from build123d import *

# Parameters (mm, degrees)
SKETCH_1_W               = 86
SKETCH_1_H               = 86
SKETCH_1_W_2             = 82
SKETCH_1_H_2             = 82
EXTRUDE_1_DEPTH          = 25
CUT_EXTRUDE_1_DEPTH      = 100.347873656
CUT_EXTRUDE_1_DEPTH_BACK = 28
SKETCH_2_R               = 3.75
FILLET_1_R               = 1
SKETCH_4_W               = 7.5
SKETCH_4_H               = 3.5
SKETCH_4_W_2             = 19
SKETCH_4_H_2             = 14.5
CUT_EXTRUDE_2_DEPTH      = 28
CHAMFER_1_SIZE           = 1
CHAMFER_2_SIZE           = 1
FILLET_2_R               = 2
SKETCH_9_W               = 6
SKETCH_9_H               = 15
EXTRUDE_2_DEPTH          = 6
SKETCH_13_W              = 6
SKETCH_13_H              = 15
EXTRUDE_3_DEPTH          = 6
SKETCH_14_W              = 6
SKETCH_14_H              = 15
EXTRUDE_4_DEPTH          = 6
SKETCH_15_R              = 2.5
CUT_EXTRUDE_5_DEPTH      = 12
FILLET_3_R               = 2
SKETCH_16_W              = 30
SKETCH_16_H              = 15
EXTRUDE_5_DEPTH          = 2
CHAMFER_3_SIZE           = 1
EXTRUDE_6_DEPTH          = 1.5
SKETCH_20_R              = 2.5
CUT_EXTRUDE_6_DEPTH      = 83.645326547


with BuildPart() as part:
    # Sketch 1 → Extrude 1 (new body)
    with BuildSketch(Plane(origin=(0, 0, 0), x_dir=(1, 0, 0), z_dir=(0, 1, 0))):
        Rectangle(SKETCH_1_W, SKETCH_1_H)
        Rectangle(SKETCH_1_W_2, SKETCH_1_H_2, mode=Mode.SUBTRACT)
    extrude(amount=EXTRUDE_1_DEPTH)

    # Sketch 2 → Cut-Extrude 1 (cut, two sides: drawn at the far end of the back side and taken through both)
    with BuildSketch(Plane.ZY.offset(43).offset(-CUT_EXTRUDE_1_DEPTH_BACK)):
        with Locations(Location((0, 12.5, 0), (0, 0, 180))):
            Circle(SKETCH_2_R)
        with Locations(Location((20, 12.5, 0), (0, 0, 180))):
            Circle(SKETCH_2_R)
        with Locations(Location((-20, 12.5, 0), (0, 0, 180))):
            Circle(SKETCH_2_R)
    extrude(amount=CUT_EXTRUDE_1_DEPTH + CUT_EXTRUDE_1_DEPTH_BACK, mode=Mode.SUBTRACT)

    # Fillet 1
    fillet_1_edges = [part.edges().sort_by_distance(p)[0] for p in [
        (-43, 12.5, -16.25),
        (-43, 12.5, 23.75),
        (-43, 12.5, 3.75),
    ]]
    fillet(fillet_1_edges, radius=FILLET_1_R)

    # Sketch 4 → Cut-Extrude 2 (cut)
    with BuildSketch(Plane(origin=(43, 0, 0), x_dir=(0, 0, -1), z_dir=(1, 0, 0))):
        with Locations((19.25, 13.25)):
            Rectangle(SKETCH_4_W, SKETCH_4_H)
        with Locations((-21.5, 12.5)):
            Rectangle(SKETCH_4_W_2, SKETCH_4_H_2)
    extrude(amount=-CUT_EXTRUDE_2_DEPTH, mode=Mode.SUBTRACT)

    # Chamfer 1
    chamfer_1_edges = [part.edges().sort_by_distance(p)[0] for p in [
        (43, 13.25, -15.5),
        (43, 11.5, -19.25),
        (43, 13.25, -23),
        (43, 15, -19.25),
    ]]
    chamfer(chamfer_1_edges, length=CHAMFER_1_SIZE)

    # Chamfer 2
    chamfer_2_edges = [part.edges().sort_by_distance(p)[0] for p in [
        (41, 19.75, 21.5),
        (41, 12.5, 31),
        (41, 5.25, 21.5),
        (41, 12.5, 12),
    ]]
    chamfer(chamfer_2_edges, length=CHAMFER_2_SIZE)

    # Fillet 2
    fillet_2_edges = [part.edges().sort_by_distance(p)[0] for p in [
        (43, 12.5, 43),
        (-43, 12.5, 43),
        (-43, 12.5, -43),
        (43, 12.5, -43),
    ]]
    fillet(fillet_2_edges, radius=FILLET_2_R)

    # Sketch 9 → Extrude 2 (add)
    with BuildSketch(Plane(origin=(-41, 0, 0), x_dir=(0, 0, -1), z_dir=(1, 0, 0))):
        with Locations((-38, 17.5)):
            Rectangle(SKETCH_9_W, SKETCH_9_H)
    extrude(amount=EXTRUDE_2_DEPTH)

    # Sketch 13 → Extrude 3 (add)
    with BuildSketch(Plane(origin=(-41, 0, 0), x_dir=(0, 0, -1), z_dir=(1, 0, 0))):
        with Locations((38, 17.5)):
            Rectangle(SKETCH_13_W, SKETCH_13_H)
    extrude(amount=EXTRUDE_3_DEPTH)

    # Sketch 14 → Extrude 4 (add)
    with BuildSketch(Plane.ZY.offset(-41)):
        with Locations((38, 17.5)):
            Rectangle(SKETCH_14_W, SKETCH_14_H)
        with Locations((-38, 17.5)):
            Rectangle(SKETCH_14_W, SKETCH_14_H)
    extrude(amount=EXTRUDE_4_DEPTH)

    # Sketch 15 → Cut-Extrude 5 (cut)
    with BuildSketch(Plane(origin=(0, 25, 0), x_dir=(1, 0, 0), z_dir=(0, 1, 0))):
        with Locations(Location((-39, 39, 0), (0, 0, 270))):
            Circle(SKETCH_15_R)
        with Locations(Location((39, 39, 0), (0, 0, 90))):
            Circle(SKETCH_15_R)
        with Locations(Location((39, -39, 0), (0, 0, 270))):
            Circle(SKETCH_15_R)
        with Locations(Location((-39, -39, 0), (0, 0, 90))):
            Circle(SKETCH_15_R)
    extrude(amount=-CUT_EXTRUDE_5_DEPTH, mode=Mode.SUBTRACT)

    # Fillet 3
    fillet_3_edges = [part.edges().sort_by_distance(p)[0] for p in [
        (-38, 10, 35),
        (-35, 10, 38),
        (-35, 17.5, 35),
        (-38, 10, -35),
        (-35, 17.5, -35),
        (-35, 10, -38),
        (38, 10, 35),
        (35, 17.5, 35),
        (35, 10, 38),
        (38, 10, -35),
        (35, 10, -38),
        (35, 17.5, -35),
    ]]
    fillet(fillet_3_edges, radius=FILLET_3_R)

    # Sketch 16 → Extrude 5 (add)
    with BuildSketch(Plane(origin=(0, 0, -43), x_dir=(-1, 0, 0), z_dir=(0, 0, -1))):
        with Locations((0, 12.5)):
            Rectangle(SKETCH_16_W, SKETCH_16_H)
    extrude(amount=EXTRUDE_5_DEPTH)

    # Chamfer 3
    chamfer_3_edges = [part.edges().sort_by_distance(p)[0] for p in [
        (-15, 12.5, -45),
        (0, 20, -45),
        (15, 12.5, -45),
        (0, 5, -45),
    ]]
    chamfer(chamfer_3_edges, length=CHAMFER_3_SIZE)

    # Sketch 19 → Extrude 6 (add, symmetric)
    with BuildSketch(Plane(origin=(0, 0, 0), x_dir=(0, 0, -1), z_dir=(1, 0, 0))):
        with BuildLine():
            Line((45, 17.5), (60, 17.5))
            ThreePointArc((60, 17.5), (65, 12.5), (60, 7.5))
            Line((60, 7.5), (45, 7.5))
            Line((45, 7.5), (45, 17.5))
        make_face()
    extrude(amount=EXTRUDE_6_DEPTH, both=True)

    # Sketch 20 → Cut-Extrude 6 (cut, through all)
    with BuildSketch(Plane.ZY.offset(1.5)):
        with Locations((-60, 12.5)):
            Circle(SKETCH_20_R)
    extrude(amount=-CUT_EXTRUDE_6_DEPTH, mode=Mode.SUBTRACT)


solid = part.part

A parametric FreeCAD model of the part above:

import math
import FreeCAD as App
import Part
import Sketcher

V = App.Vector


def edges_at(feature, points):
    """Names of the edges that pass closest to the given points."""
    edges = feature.Shape.Edges
    near = lambda p: min(range(len(edges)), key=lambda i: edges[i].distToShape(Part.Vertex(*p))[0])
    return sorted({f"Edge{near(p) + 1}" for p in points})


def add_polygon(sketch, points):
    """Adds a closed chain of lines whose ends are joined by coincident constraints."""
    first, n = sketch.GeometryCount, len(points)
    for a, b in zip(points, points[1:] + points[:1]):
        sketch.addGeometry(Part.LineSegment(App.Vector(*a, 0), App.Vector(*b, 0)), False)
    for i in range(n):
        sketch.addConstraint(Sketcher.Constraint("Coincident", first + i, 2, first + (i + 1) % n, 1))

doc = App.newDocument("Part")
params = doc.addObject("Spreadsheet::Sheet", "Params")
for row, (alias, value) in enumerate([
    ("sketch1_width", "86 mm"),
    ("sketch1_width2", "82 mm"),
    ("pad1_length", "25 mm"),
    ("sketch2_diameter", "7.5 mm"),
    ("pocket1_length", "100.347874 mm"),
    ("pocket1_length2", "28 mm"),
    ("fillet_radius", "1 mm"),
    ("sketch3_height", "19 mm"),
    ("sketch3_width", "3.5 mm"),
    ("sketch3_width2", "14.5 mm"),
    ("sketch3_height2", "7.5 mm"),
    ("pocket2_length", "28 mm"),
    ("chamfer_size", "1 mm"),
    ("chamfer2_size", "1 mm"),
    ("fillet2_radius", "2 mm"),
    ("sketch4_width", "15 mm"),
    ("sketch4_height", "6 mm"),
    ("pad2_length", "6 mm"),
    ("sketch5_width", "15 mm"),
    ("sketch5_height", "6 mm"),
    ("pad3_length", "6 mm"),
    ("sketch6_width", "15 mm"),
    ("sketch6_height", "6 mm"),
    ("pad4_length", "6 mm"),
    ("sketch7_diameter", "5 mm"),
    ("pocket3_length", "12 mm"),
    ("fillet3_radius", "2 mm"),
    ("sketch8_width", "30 mm"),
    ("sketch8_height", "15 mm"),
    ("pad5_length", "2 mm"),
    ("chamfer3_size", "1 mm"),
    ("sketch9_radius", "5 mm"),
    ("sketch9_height", "15 mm"),
    ("pad6_length", "3 mm"),
    ("sketch10_diameter", "5 mm"),
], start=1):
    params.set(f"A{row}", alias)
    params.set(f"B{row}", "=" + value)
    params.setAlias(f"B{row}", alias)

body = doc.addObject("PartDesign::Body", "Body")

sketch1 = body.newObject("Sketcher::SketchObject", "Sketch")
sketch1.AttachmentSupport = (doc.getObject("XZ_Plane"), [""])
sketch1.MapMode = "FlatFace"
add_polygon(sketch1, [(-43, -43), (-43, 43), (43, 43), (43, -43)])
add_polygon(sketch1, [(41, 41), (-41, 41), (-41, -41), (41, -41)])
sketch1.addConstraint([
    Sketcher.Constraint("Vertical", 0),
    Sketcher.Constraint("Horizontal", 1),
    Sketcher.Constraint("Vertical", 2),
    Sketcher.Constraint("Horizontal", 3),
    Sketcher.Constraint("Horizontal", 4),
    Sketcher.Constraint("Vertical", 5),
    Sketcher.Constraint("Horizontal", 6),
    Sketcher.Constraint("Vertical", 7),
    Sketcher.Constraint("Symmetric", 0, 2, 2, 2, -1, 1),
    Sketcher.Constraint("Symmetric", 4, 2, 6, 2, -1, 1),
    Sketcher.Constraint("Equal", 3, 0),
    Sketcher.Constraint("Equal", 6, 5),
    Sketcher.Constraint("DistanceX", 1, 1, 1, 2, 86.0),
    Sketcher.Constraint("DistanceX", 4, 2, 4, 1, 82.0),
])
sketch1.setExpression("Constraints[20]", "Params.sketch1_width")
sketch1.setExpression("Constraints[21]", "Params.sketch1_width2")
pad1 = body.newObject("PartDesign::Pad", "Pad")
pad1.Profile = sketch1
pad1.setExpression("Length", "Params.pad1_length")
pad1.Reversed = True

sketch2 = body.newObject("Sketcher::SketchObject", "Sketch001")
sketch2.AttachmentSupport = (doc.getObject("YZ_Plane"), [""])
sketch2.MapMode = "FlatFace"
sketch2.AttachmentOffset = App.Placement(V(0, 0, -43), App.Rotation())
sketch2.addGeometry([
    Part.Circle(V(12.5, 0, 0), V(0, 0, 1), 3.8),
    Part.Circle(V(12.5, 20, 0), V(0, 0, 1), 3.8),
    Part.Circle(V(12.5, -20, 0), V(0, 0, 1), 3.8),
], False)
sketch2.addConstraint([
    Sketcher.Constraint("Equal", 0, 1),
    Sketcher.Constraint("Equal", 1, 2),
    Sketcher.Constraint("Symmetric", 1, 3, 2, 3, -1),
    Sketcher.Constraint("PointOnObject", 0, 3, -1),
    Sketcher.Constraint("Vertical", 0, 3, 1, 3),
    Sketcher.Constraint("Diameter", 0, 7.5),
    Sketcher.Constraint("DistanceY", -1, 1, 1, 3, 20.0),
    Sketcher.Constraint("DistanceX", -1, 1, 0, 3, 12.5),
])
sketch2.setExpression("Constraints[5]", "Params.sketch2_diameter")
pocket1 = body.newObject("PartDesign::Pocket", "Pocket")
pocket1.Profile = sketch2
pocket1.Type = "TwoLengths"
pocket1.setExpression("Length", "Params.pocket1_length")
pocket1.setExpression("Length2", "Params.pocket1_length2")
doc.recompute()

fillet = body.newObject("PartDesign::Fillet", "Fillet")
fillet.Base = (pocket1, edges_at(pocket1, [(-43, 12.5, -16.25), (-43, 12.5, 23.75), (-43, 12.5, 3.75)]))
fillet.setExpression("Radius", "Params.fillet_radius")

sketch3 = body.newObject("Sketcher::SketchObject", "Sketch002")
sketch3.AttachmentSupport = (doc.getObject("YZ_Plane"), [""])
sketch3.MapMode = "FlatFace"
sketch3.AttachmentOffset = App.Placement(V(0, 0, 43), App.Rotation())
add_polygon(sketch3, [(15, -15.5), (11.5, -15.5), (11.5, -23), (15, -23)])
add_polygon(sketch3, [(19.8, 31), (5.2, 31), (5.2, 12), (19.8, 12)])
sketch3.addConstraint([
    Sketcher.Constraint("Horizontal", 0),
    Sketcher.Constraint("Vertical", 1),
    Sketcher.Constraint("Horizontal", 2),
    Sketcher.Constraint("Vertical", 3),
    Sketcher.Constraint("Horizontal", 4),
    Sketcher.Constraint("Vertical", 5),
    Sketcher.Constraint("Horizontal", 6),
    Sketcher.Constraint("Vertical", 7),
    Sketcher.Constraint("DistanceY", 5, 2, 5, 1, 19.0),
    Sketcher.Constraint("DistanceX", 0, 2, 0, 1, 3.5),
    Sketcher.Constraint("DistanceX", 4, 2, 4, 1, 14.5),
    Sketcher.Constraint("DistanceY", 1, 2, 1, 1, 7.5),
    Sketcher.Constraint("DistanceY", 1, 2, -1, 1, 23.0),
    Sketcher.Constraint("DistanceX", -1, 1, 2, 2, 15.0),
    Sketcher.Constraint("DistanceY", -1, 1, 4, 2, 31.0),
    Sketcher.Constraint("DistanceX", -1, 1, 4, 2, 5.25),
])
sketch3.setExpression("Constraints[16]", "Params.sketch3_height")
sketch3.setExpression("Constraints[17]", "Params.sketch3_width")
sketch3.setExpression("Constraints[18]", "Params.sketch3_width2")
sketch3.setExpression("Constraints[19]", "Params.sketch3_height2")
pocket2 = body.newObject("PartDesign::Pocket", "Pocket001")
pocket2.Profile = sketch3
pocket2.setExpression("Length", "Params.pocket2_length")
doc.recompute()

chamfer = body.newObject("PartDesign::Chamfer", "Chamfer")
chamfer.Base = (pocket2, edges_at(pocket2, [
    (43, 13.25, -15.5),
    (43, 11.5, -19.25),
    (43, 13.25, -23),
    (43, 15, -19.25),
]))
chamfer.setExpression("Size", "Params.chamfer_size")
doc.recompute()

chamfer2 = body.newObject("PartDesign::Chamfer", "Chamfer001")
chamfer2.Base = (chamfer, edges_at(chamfer, [
    (41, 19.75, 21.5),
    (41, 12.5, 31),
    (41, 5.25, 21.5),
    (41, 12.5, 12),
]))
chamfer2.setExpression("Size", "Params.chamfer2_size")
doc.recompute()

fillet2 = body.newObject("PartDesign::Fillet", "Fillet001")
fillet2.Base = (chamfer2, edges_at(chamfer2, [
    (43, 12.5, 43),
    (-43, 12.5, 43),
    (-43, 12.5, -43),
    (43, 12.5, -43),
]))
fillet2.setExpression("Radius", "Params.fillet2_radius")

sketch4 = body.newObject("Sketcher::SketchObject", "Sketch003")
sketch4.AttachmentSupport = (doc.getObject("YZ_Plane"), [""])
sketch4.MapMode = "FlatFace"
sketch4.AttachmentOffset = App.Placement(V(0, 0, -41), App.Rotation())
add_polygon(sketch4, [(25, 41), (10, 41), (10, 35), (25, 35)])
sketch4.addConstraint([
    Sketcher.Constraint("Horizontal", 0),
    Sketcher.Constraint("Vertical", 1),
    Sketcher.Constraint("Horizontal", 2),
    Sketcher.Constraint("Vertical", 3),
    Sketcher.Constraint("DistanceX", 0, 2, 0, 1, 15.0),
    Sketcher.Constraint("DistanceY", 1, 2, 1, 1, 6.0),
    Sketcher.Constraint("DistanceX", -1, 1, 0, 2, 10.0),
    Sketcher.Constraint("DistanceY", -1, 1, 0, 2, 41.0),
])
sketch4.setExpression("Constraints[8]", "Params.sketch4_width")
sketch4.setExpression("Constraints[9]", "Params.sketch4_height")
pad2 = body.newObject("PartDesign::Pad", "Pad001")
pad2.Profile = sketch4
pad2.setExpression("Length", "Params.pad2_length")

sketch5 = body.newObject("Sketcher::SketchObject", "Sketch004")
sketch5.AttachmentSupport = (doc.getObject("YZ_Plane"), [""])
sketch5.MapMode = "FlatFace"
sketch5.AttachmentOffset = App.Placement(V(0, 0, -41), App.Rotation())
add_polygon(sketch5, [(25, -35), (10, -35), (10, -41), (25, -41)])
sketch5.addConstraint([
    Sketcher.Constraint("Horizontal", 0),
    Sketcher.Constraint("Vertical", 1),
    Sketcher.Constraint("Horizontal", 2),
    Sketcher.Constraint("Vertical", 3),
    Sketcher.Constraint("DistanceX", 0, 2, 0, 1, 15.0),
    Sketcher.Constraint("DistanceY", 1, 2, 1, 1, 6.0),
    Sketcher.Constraint("DistanceX", -1, 1, 0, 2, 10.0),
    Sketcher.Constraint("DistanceY", 0, 2, -1, 1, 35.0),
])
sketch5.setExpression("Constraints[8]", "Params.sketch5_width")
sketch5.setExpression("Constraints[9]", "Params.sketch5_height")
pad3 = body.newObject("PartDesign::Pad", "Pad002")
pad3.Profile = sketch5
pad3.setExpression("Length", "Params.pad3_length")

sketch6 = body.newObject("Sketcher::SketchObject", "Sketch005")
sketch6.AttachmentSupport = (doc.getObject("YZ_Plane"), [""])
sketch6.MapMode = "FlatFace"
sketch6.AttachmentOffset = App.Placement(V(0, 0, 41), App.Rotation())
add_polygon(sketch6, [(25, 35), (10, 35), (10, 41), (25, 41)])
add_polygon(sketch6, [(25, -41), (10, -41), (10, -35), (25, -35)])
sketch6.addConstraint([
    Sketcher.Constraint("Horizontal", 0),
    Sketcher.Constraint("Vertical", 1),
    Sketcher.Constraint("Horizontal", 2),
    Sketcher.Constraint("Vertical", 3),
    Sketcher.Constraint("Horizontal", 4),
    Sketcher.Constraint("Vertical", 5),
    Sketcher.Constraint("Horizontal", 6),
    Sketcher.Constraint("Vertical", 7),
    Sketcher.Constraint("Symmetric", 1, 2, 4, 2, -1),
    Sketcher.Constraint("Symmetric", 3, 2, 6, 2, -1),
    Sketcher.Constraint("DistanceX", 0, 2, 0, 1, 15.0),
    Sketcher.Constraint("DistanceY", 1, 1, 1, 2, 6.0),
    Sketcher.Constraint("DistanceX", -1, 1, 0, 2, 10.0),
    Sketcher.Constraint("DistanceY", -1, 1, 0, 2, 35.0),
])
sketch6.setExpression("Constraints[18]", "Params.sketch6_width")
sketch6.setExpression("Constraints[19]", "Params.sketch6_height")
pad4 = body.newObject("PartDesign::Pad", "Pad003")
pad4.Profile = sketch6
pad4.setExpression("Length", "Params.pad4_length")
pad4.Reversed = True

sketch7 = body.newObject("Sketcher::SketchObject", "Sketch006")
sketch7.AttachmentSupport = (doc.getObject("XZ_Plane"), [""])
sketch7.MapMode = "FlatFace"
sketch7.AttachmentOffset = App.Placement(V(0, 0, -25), App.Rotation())
sketch7.addGeometry([
    Part.Circle(V(-39, -39, 0), V(0, 0, 1), 2.5),
    Part.Circle(V(39, -39, 0), V(0, 0, 1), 2.5),
    Part.Circle(V(39, 39, 0), V(0, 0, 1), 2.5),
    Part.Circle(V(-39, 39, 0), V(0, 0, 1), 2.5),
], False)
sketch7.addConstraint([
    Sketcher.Constraint("Equal", 0, 1),
    Sketcher.Constraint("Equal", 1, 2),
    Sketcher.Constraint("Equal", 2, 3),
    Sketcher.Constraint("Symmetric", 0, 3, 2, 3, -1, 1),
    Sketcher.Constraint("Symmetric", 1, 3, 3, 3, -1, 1),
    Sketcher.Constraint("Symmetric", 0, 3, 1, 3, -2),
    Sketcher.Constraint("Diameter", 0, 5.0),
    Sketcher.Constraint("DistanceX", 0, 3, -1, 1, 39.0),
    Sketcher.Constraint("DistanceY", 0, 3, -1, 1, 39.0),
])
sketch7.setExpression("Constraints[6]", "Params.sketch7_diameter")
pocket3 = body.newObject("PartDesign::Pocket", "Pocket002")
pocket3.Profile = sketch7
pocket3.setExpression("Length", "Params.pocket3_length")
pocket3.Reversed = True
doc.recompute()

fillet3 = body.newObject("PartDesign::Fillet", "Fillet002")
fillet3.Base = (pocket3, edges_at(pocket3, [
    (-38, 10, 35),
    (-35, 10, 38),
    (-35, 17.5, 35),
    (-38, 10, -35),
    (-35, 17.5, -35),
    (-35, 10, -38),
    (38, 10, 35),
    (35, 17.5, 35),
    (35, 10, 38),
    (38, 10, -35),
    (35, 10, -38),
    (35, 17.5, -35),
]))
fillet3.setExpression("Radius", "Params.fillet3_radius")

sketch8 = body.newObject("Sketcher::SketchObject", "Sketch007")
sketch8.AttachmentSupport = (doc.getObject("XY_Plane"), [""])
sketch8.MapMode = "FlatFace"
sketch8.AttachmentOffset = App.Placement(V(0, 0, -43), App.Rotation())
add_polygon(sketch8, [(15, 20), (15, 5), (-15, 5), (-15, 20)])
sketch8.addConstraint([
    Sketcher.Constraint("Vertical", 0),
    Sketcher.Constraint("Horizontal", 1),
    Sketcher.Constraint("Vertical", 2),
    Sketcher.Constraint("Horizontal", 3),
    Sketcher.Constraint("DistanceX", 1, 2, 1, 1, 30.0),
    Sketcher.Constraint("DistanceY", 0, 2, 0, 1, 15.0),
    Sketcher.Constraint("DistanceX", -1, 1, 0, 2, 15.0),
    Sketcher.Constraint("DistanceY", -1, 1, 0, 2, 5.0),
])
sketch8.setExpression("Constraints[8]", "Params.sketch8_width")
sketch8.setExpression("Constraints[9]", "Params.sketch8_height")
pad5 = body.newObject("PartDesign::Pad", "Pad004")
pad5.Profile = sketch8
pad5.setExpression("Length", "Params.pad5_length")
pad5.Reversed = True
doc.recompute()

chamfer3 = body.newObject("PartDesign::Chamfer", "Chamfer002")
chamfer3.Base = (pad5, edges_at(pad5, [
    (-15, 12.5, -45),
    (0, 20, -45),
    (15, 12.5, -45),
    (0, 5, -45),
]))
chamfer3.setExpression("Size", "Params.chamfer3_size")

sketch9 = body.newObject("Sketcher::SketchObject", "Sketch008")
sketch9.AttachmentSupport = (doc.getObject("YZ_Plane"), [""])
sketch9.MapMode = "FlatFace"
sketch9.addGeometry([
    Part.LineSegment(V(18, -60, 0), V(18, -45, 0)),
    Part.LineSegment(V(18, -45, 0), V(8, -45, 0)),
    Part.LineSegment(V(8, -45, 0), V(8, -60, 0)),
    Part.ArcOfCircle(Part.Circle(V(12, -60, 0), V(0, 0, 1), 5), math.radians(180), math.radians(360)),
], False)
sketch9.addConstraint([
    Sketcher.Constraint("Coincident", 0, 2, 1, 1),
    Sketcher.Constraint("Coincident", 1, 2, 2, 1),
    Sketcher.Constraint("Tangent", 2, 2, 3, 1),
    Sketcher.Constraint("Tangent", 3, 2, 0, 1),
    Sketcher.Constraint("Vertical", 0),
    Sketcher.Constraint("Horizontal", 1),
    Sketcher.Constraint("Vertical", 2),
    Sketcher.Constraint("Radius", 3, 5.0),
    Sketcher.Constraint("DistanceY", 0, 1, 0, 2, 15.0),
    Sketcher.Constraint("DistanceY", 3, 3, -1, 1, 60.0),
    Sketcher.Constraint("DistanceX", -1, 1, 3, 3, 12.5),
])
sketch9.setExpression("Constraints[7]", "Params.sketch9_radius")
sketch9.setExpression("Constraints[8]", "Params.sketch9_height")
pad6 = body.newObject("PartDesign::Pad", "Pad005")
pad6.Profile = sketch9
pad6.setExpression("Length", "Params.pad6_length")
pad6.Midplane = True

sketch10 = body.newObject("Sketcher::SketchObject", "Sketch009")
sketch10.AttachmentSupport = (doc.getObject("YZ_Plane"), [""])
sketch10.MapMode = "FlatFace"
sketch10.AttachmentOffset = App.Placement(V(0, 0, -1.5), App.Rotation())
sketch10.addGeometry(Part.Circle(V(12.5, -60, 0), V(0, 0, 1), 2.5), False)
sketch10.addConstraint([
    Sketcher.Constraint("Diameter", 0, 5.0),
    Sketcher.Constraint("DistanceY", 0, 3, -1, 1, 60.0),
    Sketcher.Constraint("DistanceX", -1, 1, 0, 3, 12.5),
])
sketch10.setExpression("Constraints[0]", "Params.sketch10_diameter")
pocket4 = body.newObject("PartDesign::Pocket", "Pocket003")
pocket4.Profile = sketch10
pocket4.Type = "ThroughAll"
pocket4.Reversed = True

doc.recompute()
